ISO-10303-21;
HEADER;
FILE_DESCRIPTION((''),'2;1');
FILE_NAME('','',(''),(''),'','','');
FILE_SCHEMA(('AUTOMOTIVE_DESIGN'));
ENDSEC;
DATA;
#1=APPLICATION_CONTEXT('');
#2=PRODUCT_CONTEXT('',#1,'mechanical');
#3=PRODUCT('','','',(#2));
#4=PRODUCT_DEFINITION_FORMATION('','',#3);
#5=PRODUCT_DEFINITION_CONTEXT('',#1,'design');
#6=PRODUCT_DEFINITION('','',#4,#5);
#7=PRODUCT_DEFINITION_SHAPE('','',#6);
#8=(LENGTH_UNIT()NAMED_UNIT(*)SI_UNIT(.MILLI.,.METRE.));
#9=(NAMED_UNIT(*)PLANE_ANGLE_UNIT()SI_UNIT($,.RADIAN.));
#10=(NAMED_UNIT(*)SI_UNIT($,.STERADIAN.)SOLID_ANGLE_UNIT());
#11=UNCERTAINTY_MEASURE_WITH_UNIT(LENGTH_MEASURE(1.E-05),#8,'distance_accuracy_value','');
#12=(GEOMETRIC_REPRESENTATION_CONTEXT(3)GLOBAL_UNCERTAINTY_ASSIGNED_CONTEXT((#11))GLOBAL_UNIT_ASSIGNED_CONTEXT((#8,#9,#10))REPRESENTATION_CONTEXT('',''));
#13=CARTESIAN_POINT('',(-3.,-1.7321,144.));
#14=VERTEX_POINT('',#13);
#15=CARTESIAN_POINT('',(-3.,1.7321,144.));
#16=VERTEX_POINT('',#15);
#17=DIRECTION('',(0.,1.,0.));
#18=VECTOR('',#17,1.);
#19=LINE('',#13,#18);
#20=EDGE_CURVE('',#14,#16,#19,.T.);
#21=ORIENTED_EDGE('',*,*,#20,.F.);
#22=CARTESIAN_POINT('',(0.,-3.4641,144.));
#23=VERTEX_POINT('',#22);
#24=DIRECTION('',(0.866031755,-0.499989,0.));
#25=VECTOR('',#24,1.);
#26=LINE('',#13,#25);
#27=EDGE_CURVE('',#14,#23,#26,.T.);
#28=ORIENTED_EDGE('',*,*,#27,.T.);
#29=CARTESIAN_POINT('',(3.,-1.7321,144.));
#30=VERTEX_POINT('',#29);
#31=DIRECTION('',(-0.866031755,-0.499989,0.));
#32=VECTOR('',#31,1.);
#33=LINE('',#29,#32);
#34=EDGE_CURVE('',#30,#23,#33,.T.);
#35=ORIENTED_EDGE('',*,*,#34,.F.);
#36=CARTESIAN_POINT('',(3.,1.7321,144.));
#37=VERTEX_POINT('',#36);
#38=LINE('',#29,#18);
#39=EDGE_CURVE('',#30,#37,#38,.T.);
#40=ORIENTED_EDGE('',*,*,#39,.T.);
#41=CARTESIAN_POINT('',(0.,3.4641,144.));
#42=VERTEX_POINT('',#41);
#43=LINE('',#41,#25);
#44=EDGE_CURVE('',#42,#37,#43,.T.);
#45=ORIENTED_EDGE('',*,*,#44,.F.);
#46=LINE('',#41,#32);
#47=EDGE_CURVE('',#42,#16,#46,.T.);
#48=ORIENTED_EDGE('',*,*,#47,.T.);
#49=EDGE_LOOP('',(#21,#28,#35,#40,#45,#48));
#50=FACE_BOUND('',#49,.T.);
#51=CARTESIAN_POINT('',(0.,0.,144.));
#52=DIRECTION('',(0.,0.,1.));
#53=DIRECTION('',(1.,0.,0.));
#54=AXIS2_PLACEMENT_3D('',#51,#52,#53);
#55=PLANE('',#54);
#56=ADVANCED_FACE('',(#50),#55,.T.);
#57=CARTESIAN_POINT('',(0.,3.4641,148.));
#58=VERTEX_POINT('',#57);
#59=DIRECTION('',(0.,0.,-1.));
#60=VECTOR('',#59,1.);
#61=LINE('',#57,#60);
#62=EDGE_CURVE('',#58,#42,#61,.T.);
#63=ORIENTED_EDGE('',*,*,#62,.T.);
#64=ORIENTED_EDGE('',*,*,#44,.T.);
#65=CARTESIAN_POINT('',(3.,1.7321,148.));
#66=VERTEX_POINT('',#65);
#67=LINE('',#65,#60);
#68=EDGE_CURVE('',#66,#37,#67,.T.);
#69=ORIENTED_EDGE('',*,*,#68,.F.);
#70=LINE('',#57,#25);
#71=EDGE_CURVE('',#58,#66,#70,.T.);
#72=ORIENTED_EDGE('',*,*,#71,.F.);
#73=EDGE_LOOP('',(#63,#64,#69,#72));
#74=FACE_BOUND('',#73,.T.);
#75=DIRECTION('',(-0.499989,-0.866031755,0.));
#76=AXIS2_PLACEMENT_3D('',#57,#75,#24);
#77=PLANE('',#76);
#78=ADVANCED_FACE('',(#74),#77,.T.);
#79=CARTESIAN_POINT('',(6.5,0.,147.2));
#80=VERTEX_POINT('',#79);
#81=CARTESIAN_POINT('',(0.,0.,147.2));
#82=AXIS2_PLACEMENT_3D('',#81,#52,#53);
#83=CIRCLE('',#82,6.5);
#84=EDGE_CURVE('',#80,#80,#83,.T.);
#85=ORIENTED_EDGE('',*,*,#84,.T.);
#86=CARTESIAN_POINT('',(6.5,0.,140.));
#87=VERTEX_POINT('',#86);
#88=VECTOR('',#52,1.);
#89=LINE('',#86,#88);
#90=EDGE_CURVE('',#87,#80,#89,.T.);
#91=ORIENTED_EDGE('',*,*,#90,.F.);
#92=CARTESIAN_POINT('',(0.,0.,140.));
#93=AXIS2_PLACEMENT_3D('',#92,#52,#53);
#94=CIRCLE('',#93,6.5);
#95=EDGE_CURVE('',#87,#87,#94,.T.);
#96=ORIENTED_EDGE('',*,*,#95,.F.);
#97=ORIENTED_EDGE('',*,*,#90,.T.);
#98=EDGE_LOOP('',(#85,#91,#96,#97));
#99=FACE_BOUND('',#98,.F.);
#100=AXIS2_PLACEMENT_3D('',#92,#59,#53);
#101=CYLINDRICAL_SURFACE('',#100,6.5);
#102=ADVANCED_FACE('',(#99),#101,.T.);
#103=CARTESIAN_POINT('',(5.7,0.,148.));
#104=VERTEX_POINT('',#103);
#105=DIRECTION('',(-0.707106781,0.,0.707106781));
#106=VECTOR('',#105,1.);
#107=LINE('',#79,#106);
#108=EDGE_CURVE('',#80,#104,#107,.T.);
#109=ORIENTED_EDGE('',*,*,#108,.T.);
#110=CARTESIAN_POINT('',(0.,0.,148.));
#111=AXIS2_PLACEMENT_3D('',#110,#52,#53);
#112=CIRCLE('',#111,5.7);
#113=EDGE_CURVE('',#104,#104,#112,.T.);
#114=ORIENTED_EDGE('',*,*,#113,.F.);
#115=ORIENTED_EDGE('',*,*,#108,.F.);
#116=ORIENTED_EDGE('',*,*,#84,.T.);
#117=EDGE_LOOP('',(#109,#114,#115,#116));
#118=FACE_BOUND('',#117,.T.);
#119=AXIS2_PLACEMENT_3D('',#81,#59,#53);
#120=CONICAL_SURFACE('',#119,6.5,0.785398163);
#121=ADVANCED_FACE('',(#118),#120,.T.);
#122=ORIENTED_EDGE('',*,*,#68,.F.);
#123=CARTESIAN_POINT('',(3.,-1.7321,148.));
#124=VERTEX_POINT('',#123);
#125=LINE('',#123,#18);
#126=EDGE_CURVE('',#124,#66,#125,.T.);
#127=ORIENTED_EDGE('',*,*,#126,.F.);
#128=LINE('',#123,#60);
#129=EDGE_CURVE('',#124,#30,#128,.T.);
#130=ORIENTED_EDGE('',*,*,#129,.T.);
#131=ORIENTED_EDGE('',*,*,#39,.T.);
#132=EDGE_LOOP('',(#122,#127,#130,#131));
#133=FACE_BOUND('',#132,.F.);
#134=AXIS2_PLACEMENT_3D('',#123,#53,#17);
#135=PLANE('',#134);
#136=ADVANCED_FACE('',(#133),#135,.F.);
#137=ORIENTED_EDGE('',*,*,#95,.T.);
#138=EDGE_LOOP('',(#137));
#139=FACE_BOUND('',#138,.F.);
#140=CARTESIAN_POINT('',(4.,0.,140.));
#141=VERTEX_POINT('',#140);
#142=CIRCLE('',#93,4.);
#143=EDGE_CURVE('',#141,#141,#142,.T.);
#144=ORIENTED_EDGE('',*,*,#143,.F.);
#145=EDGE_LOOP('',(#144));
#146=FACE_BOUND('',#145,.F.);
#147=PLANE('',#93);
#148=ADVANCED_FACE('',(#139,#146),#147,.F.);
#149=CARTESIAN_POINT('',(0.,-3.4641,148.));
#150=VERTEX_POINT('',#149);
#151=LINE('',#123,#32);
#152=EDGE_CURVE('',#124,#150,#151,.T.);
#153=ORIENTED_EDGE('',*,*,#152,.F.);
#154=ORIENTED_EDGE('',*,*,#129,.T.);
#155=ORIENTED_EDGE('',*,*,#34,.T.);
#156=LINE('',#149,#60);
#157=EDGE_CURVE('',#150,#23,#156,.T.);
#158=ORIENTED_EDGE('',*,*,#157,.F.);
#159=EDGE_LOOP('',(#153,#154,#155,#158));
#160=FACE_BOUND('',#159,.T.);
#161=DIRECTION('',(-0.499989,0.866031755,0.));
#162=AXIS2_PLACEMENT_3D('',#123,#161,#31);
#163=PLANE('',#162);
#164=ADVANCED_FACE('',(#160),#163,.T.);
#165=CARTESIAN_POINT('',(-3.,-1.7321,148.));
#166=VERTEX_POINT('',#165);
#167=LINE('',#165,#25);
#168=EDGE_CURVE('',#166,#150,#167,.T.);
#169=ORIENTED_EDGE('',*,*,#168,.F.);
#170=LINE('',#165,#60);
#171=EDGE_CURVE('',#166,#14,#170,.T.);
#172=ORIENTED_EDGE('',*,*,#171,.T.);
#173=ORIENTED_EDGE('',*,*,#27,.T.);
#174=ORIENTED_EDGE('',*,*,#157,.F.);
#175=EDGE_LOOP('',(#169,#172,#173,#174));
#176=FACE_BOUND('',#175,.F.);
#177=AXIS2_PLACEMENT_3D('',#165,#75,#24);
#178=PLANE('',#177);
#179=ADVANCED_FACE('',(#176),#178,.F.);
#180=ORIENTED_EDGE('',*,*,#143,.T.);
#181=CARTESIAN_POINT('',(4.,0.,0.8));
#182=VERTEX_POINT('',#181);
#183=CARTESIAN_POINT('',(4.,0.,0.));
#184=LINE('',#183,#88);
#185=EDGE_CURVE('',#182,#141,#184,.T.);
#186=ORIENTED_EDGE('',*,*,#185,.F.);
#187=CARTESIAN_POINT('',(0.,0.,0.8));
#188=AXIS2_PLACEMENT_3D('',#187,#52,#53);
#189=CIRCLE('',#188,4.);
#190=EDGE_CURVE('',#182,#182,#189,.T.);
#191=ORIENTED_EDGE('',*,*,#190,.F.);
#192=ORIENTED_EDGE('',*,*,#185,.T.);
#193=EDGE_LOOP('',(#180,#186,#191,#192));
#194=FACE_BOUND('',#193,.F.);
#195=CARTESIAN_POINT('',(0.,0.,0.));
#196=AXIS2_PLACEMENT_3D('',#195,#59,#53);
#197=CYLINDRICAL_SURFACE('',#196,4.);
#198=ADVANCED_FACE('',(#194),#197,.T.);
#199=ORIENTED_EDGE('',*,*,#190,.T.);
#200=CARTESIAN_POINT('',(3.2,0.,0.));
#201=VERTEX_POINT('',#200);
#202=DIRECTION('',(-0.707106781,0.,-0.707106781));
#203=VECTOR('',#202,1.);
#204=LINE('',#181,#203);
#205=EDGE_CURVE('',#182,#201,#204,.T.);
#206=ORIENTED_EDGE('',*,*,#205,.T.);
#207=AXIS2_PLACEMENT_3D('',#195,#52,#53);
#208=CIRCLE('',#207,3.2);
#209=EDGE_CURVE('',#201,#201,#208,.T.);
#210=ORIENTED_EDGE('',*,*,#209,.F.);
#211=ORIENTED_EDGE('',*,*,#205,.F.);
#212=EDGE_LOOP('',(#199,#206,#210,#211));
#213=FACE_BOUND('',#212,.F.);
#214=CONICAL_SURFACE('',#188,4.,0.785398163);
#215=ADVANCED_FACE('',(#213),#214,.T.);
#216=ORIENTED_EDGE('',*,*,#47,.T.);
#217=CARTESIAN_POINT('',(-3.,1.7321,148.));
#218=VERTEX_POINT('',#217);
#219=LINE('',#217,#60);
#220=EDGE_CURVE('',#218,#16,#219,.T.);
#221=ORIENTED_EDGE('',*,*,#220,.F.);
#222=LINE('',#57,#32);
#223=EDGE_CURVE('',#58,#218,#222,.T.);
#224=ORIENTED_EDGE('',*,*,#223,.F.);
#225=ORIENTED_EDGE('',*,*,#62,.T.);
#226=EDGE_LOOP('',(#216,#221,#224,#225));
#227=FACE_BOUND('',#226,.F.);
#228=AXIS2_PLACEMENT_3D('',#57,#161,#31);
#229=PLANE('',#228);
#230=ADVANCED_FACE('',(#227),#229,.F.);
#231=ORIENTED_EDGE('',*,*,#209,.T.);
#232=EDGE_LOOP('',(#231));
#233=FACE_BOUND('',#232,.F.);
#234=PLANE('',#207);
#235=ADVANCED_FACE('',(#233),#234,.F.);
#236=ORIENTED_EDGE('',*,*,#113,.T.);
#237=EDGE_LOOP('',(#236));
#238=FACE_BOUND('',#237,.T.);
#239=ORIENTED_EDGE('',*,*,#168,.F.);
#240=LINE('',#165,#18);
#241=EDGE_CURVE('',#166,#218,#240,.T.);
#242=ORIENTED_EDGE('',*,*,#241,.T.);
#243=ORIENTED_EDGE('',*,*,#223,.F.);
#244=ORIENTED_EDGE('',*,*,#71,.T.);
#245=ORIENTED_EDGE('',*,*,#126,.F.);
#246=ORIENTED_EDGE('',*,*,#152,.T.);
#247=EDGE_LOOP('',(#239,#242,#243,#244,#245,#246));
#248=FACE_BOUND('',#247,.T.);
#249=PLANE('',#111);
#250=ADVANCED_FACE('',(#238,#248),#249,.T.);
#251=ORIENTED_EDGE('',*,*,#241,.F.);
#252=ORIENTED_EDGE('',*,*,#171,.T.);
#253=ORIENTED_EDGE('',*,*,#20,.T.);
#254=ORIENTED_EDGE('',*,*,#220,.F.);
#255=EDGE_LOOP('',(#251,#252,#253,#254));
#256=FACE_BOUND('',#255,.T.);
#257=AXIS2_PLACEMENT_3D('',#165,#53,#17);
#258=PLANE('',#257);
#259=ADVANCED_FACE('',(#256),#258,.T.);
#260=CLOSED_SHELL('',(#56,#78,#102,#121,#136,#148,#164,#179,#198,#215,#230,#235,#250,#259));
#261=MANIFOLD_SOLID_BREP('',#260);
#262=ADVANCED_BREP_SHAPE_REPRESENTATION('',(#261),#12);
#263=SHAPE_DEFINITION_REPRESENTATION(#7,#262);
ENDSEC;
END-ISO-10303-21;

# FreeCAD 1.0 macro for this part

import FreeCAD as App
import Part
import Sketcher
Q = App.Units.Quantity


def edges_at(feature, points):
    """Names of the edges that pass closest to the given points."""
    edges = feature.Shape.Edges
    near = lambda p: min(range(len(edges)), key=lambda i: edges[i].distToShape(Part.Vertex(*p))[0])
    return sorted({f"Edge{near(p) + 1}" for p in points})

doc = App.newDocument("Part")
body = doc.addObject("PartDesign::Body", "Body")

# Sketch on XY plane
sketch1 = body.newObject("Sketcher::SketchObject", "Sketch")
sketch1.AttachmentSupport = (doc.getObject("XY_Plane"), [""])
sketch1.MapMode = "FlatFace"
sketch1.addGeometry(Part.Circle(App.Vector(0, 0, 0), App.Vector(0, 0, 1), 4), False)
sketch1.addConstraint(Sketcher.Constraint("Coincident", 0, 3, -1, 1))
sketch1.addConstraint(Sketcher.Constraint("Diameter", 0, 8.0))
pad1 = body.newObject("PartDesign::Pad", "Pad")
pad1.Profile = sketch1
pad1.Length = 140

# Sketch on XY plane
sketch2 = body.newObject("Sketcher::SketchObject", "Sketch001")
sketch2.AttachmentSupport = (doc.getObject("XY_Plane"), [""])
sketch2.MapMode = "FlatFace"
sketch2.AttachmentOffset = App.Placement(App.Vector(0, 0, 140), App.Rotation())
sketch2.addGeometry(Part.Circle(App.Vector(0, 0, 0), App.Vector(0, 0, 1), 6.5), False)
sketch2.addConstraint(Sketcher.Constraint("Coincident", 0, 3, -1, 1))
sketch2.addConstraint(Sketcher.Constraint("Diameter", 0, 13.0))
pad2 = body.newObject("PartDesign::Pad", "Pad001")
pad2.Profile = sketch2
pad2.Length = 8

# Sketch on XY plane
sketch3 = body.newObject("Sketcher::SketchObject", "Sketch002")
sketch3.AttachmentSupport = (doc.getObject("XY_Plane"), [""])
sketch3.MapMode = "FlatFace"
sketch3.AttachmentOffset = App.Placement(App.Vector(0, 0, 148), App.Rotation())
sketch3.addGeometry(Part.LineSegment(App.Vector(3, 1.7321, 0), App.Vector(0, 3.4641, 0)), False)
sketch3.addGeometry(Part.LineSegment(App.Vector(0, 3.4641, 0), App.Vector(-3, 1.7321, 0)), False)
sketch3.addGeometry(Part.LineSegment(App.Vector(-3, 1.7321, 0), App.Vector(-3, -1.7321, 0)), False)
sketch3.addGeometry(Part.LineSegment(App.Vector(-3, -1.7321, 0), App.Vector(0, -3.4641, 0)), False)
sketch3.addGeometry(Part.LineSegment(App.Vector(0, -3.4641, 0), App.Vector(3, -1.7321, 0)), False)
sketch3.addGeometry(Part.LineSegment(App.Vector(3, -1.7321, 0), App.Vector(3, 1.7321, 0)), False)
sketch3.addConstraint(Sketcher.Constraint("Coincident", 0, 2, 1, 1))
sketch3.addConstraint(Sketcher.Constraint("Coincident", 1, 2, 2, 1))
sketch3.addConstraint(Sketcher.Constraint("Coincident", 2, 2, 3, 1))
sketch3.addConstraint(Sketcher.Constraint("Coincident", 3, 2, 4, 1))
sketch3.addConstraint(Sketcher.Constraint("Coincident", 4, 2, 5, 1))
sketch3.addConstraint(Sketcher.Constraint("Coincident", 5, 2, 0, 1))
sketch3.addConstraint(Sketcher.Constraint("Vertical", 2))
sketch3.addConstraint(Sketcher.Constraint("Vertical", 5))
sketch3.addConstraint(Sketcher.Constraint("Symmetric", 0, 2, 3, 2, -1, 1))
sketch3.addConstraint(Sketcher.Constraint("Symmetric", 1, 2, 4, 2, -1, 1))
sketch3.addConstraint(Sketcher.Constraint("PointOnObject", 0, 2, -2))
sketch3.addConstraint(Sketcher.Constraint("Parallel", 0, 3))
sketch3.addConstraint(Sketcher.Constraint("Horizontal", 2, 2, 4, 2))
sketch3.addConstraint(Sketcher.Constraint("DistanceX", 2, 2, 4, 2, 6.0))
sketch3.addConstraint(Sketcher.Constraint("Angle", 0, Q("150.0007 deg")))
sketch3.addConstraint(Sketcher.Constraint("DistanceY", 2, 2, 2, 1, 3.4642))
pocket1 = body.newObject("PartDesign::Pocket", "Pocket")
pocket1.Profile = sketch3
pocket1.Length = 4
doc.recompute()

chamfer = body.newObject("PartDesign::Chamfer", "Chamfer")
chamfer.Base = (pocket1, edges_at(pocket1, [(-6.5, 0, 148), (-4, 0, 0)]))
chamfer.Size = 0.8

doc.recompute()
